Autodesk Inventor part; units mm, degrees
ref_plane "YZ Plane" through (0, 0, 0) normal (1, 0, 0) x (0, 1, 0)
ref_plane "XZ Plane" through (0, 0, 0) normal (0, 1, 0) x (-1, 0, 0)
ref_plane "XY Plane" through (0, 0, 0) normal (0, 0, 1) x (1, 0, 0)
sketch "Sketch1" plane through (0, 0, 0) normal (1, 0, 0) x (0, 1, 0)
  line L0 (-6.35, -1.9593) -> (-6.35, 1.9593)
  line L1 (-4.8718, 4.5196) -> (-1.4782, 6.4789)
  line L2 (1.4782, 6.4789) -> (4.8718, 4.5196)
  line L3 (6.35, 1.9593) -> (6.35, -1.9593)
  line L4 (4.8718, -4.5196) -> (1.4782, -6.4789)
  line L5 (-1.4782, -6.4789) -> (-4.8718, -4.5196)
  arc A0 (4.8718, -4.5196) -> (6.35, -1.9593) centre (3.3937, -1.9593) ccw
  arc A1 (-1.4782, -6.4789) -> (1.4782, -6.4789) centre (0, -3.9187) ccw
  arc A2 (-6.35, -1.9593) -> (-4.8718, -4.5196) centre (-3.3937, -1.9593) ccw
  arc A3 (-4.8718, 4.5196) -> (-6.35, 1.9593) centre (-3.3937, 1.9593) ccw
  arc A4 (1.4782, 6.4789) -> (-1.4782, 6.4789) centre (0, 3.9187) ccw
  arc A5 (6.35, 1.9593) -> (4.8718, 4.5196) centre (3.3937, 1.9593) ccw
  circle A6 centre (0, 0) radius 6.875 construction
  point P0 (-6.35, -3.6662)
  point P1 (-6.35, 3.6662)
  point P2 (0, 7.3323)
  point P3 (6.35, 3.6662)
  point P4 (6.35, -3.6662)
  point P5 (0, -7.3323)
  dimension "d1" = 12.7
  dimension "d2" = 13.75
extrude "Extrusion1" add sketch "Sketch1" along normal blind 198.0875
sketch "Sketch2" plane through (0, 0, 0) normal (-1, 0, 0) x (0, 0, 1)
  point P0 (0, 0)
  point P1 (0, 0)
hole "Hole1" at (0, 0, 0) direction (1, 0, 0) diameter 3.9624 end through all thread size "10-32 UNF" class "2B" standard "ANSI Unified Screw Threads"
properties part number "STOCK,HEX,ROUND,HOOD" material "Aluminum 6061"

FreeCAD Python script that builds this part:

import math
import FreeCAD as App
import Part
import Sketcher
Q = App.Units.Quantity

doc = App.newDocument("Part")
body = doc.addObject("PartDesign::Body", "Body")

sketch1 = body.newObject("Sketcher::SketchObject", "Sketch")
sketch1.AttachmentSupport = (doc.getObject("YZ_Plane"), [""])
sketch1.MapMode = "FlatFace"
sketch1.addGeometry([
    Part.LineSegment(App.Vector(-6.3, 2, 0), App.Vector(-6.3, -2, 0)),
    Part.ArcOfCircle(Part.Circle(App.Vector(-3.4, -2, 0), App.Vector(0, 0, 1), 3), math.radians(180), math.radians(240)),
    Part.LineSegment(App.Vector(-4.9, -4.5, 0), App.Vector(-1.5, -6.5, 0)),
    Part.ArcOfCircle(Part.Circle(App.Vector(0, -3.9, 0), App.Vector(0, 0, 1), 3), math.radians(-120), math.radians(-60)),
    Part.LineSegment(App.Vector(1.5, -6.5, 0), App.Vector(4.9, -4.5, 0)),
    Part.ArcOfCircle(Part.Circle(App.Vector(3.4, -2, 0), App.Vector(0, 0, 1), 3), math.radians(-60), math.radians(0)),
    Part.LineSegment(App.Vector(6.3, -2, 0), App.Vector(6.3, 2, 0)),
    Part.ArcOfCircle(Part.Circle(App.Vector(3.4, 2, 0), App.Vector(0, 0, 1), 3), math.radians(0), math.radians(60)),
    Part.LineSegment(App.Vector(4.9, 4.5, 0), App.Vector(1.5, 6.5, 0)),
    Part.ArcOfCircle(Part.Circle(App.Vector(0, 3.9, 0), App.Vector(0, 0, 1), 3), math.radians(60), math.radians(120)),
    Part.LineSegment(App.Vector(-1.5, 6.5, 0), App.Vector(-4.9, 4.5, 0)),
    Part.ArcOfCircle(Part.Circle(App.Vector(-3.4, 2, 0), App.Vector(0, 0, 1), 3), math.radians(120), math.radians(180)),
], False)
sketch1.addConstraint([
    Sketcher.Constraint("Tangent", 0, 2, 1, 1),
    Sketcher.Constraint("Tangent", 1, 2, 2, 1),
    Sketcher.Constraint("Tangent", 2, 2, 3, 1),
    Sketcher.Constraint("Tangent", 3, 2, 4, 1),
    Sketcher.Constraint("Tangent", 4, 2, 5, 1),
    Sketcher.Constraint("Tangent", 5, 2, 6, 1),
    Sketcher.Constraint("Tangent", 6, 2, 7, 1),
    Sketcher.Constraint("Tangent", 7, 2, 8, 1),
    Sketcher.Constraint("Tangent", 8, 2, 9, 1),
    Sketcher.Constraint("Tangent", 9, 2, 10, 1),
    Sketcher.Constraint("Tangent", 10, 2, 11, 1),
    Sketcher.Constraint("Tangent", 11, 2, 0, 1),
    Sketcher.Constraint("Vertical", 0),
    Sketcher.Constraint("Vertical", 6),
    Sketcher.Constraint("Equal", 1, 3),
    Sketcher.Constraint("Equal", 3, 5),
    Sketcher.Constraint("Equal", 5, 7),
    Sketcher.Constraint("Equal", 7, 9),
    Sketcher.Constraint("Equal", 9, 11),
    Sketcher.Constraint("Symmetric", 1, 3, 7, 3, -1, 1),
    Sketcher.Constraint("Symmetric", 3, 3, 9, 3, -1, 1),
    Sketcher.Constraint("Symmetric", 2, 2, 3, 2, -2),
    Sketcher.Constraint("Parallel", 4, 10),
    Sketcher.Constraint("Angle", 2, Q("-30 deg")),
    Sketcher.Constraint("Radius", 1, Q("0.1164 in")),
    Sketcher.Constraint("DistanceX", 0, 2, -1, 1, Q("0.25 in")),
    Sketcher.Constraint("DistanceY", 0, 2, 0, 1, 3.9186),
])
pad1 = body.newObject("PartDesign::Pad", "Pad")
pad1.Profile = sketch1
pad1.Length = 198.0875

sketch2 = body.newObject("Sketcher::SketchObject", "Sketch001")
sketch2.AttachmentSupport = (doc.getObject("YZ_Plane"), [""])
sketch2.MapMode = "FlatFace"
sketch2.addGeometry(Part.Circle(App.Vector(0, 0, 0), App.Vector(0, 0, 1), 2), False)
sketch2.addConstraint([
    Sketcher.Constraint("Coincident", 0, 3, -1, 1),
    Sketcher.Constraint("Diameter", 0, Q("0.156 in")),
])
doc.recompute()
hole = body.newObject("PartDesign::Hole", "Hole")
hole.Profile = sketch2
hole.ThreadType = "None"
hole.Diameter = Q("0.156 in")
hole.DepthType = "ThroughAll"
hole.Reversed = True

doc.recompute()
